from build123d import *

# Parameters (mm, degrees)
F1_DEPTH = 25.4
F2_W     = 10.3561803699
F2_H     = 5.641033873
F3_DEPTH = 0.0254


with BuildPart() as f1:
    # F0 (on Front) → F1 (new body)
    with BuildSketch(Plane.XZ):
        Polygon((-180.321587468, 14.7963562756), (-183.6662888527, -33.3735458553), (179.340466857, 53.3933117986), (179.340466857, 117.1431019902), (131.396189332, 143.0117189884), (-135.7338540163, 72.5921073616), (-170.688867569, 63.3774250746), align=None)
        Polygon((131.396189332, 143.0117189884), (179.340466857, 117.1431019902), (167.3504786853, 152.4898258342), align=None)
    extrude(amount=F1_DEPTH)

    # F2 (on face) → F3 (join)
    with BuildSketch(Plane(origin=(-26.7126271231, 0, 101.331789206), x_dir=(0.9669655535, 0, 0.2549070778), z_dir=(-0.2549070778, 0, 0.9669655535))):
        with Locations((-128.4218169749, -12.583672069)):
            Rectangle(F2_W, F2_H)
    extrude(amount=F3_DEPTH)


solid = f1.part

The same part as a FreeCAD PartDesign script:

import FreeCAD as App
import Part
import Sketcher
from FreeCAD import Vector
Q = App.Units.Quantity


def add_polygon(sketch, points):
    """Adds a closed chain of lines whose ends are joined by coincident constraints."""
    first, n = sketch.GeometryCount, len(points)
    for a, b in zip(points, points[1:] + points[:1]):
        sketch.addGeometry(Part.LineSegment(App.Vector(*a, 0), App.Vector(*b, 0)), False)
    for i in range(n):
        sketch.addConstraint(Sketcher.Constraint("Coincident", first + i, 2, first + (i + 1) % n, 1))

doc = App.newDocument("Part")
body = doc.addObject("PartDesign::Body", "Body")

# Sketch on XZ plane
sketch1 = doc.addObject("Sketcher::SketchObject", "Sketch")
body.addObject(sketch1)
sketch1.AttachmentSupport = (doc.XZ_Plane, [""])
sketch1.MapMode = "FlatFace"
add_polygon(sketch1, [(-180.321587, 14.796356), (-183.666289, -33.373546), (179.340467, 53.393312), (179.340467, 117.143102), (167.350479, 152.489826), (-135.733854, 72.592107), (-170.688868, 63.377425)])  # lines 0-6
sketch1.addConstraint([
    Sketcher.Constraint("Vertical", 2),
    Sketcher.Constraint("Parallel", 4, 5),
    Sketcher.Constraint("DistanceY", 2, 1, 2, 2, 63.74979),
    Sketcher.Constraint("DistanceY", -1, 1, 2, 2, 117.143102),
    Sketcher.Constraint("DistanceY", 5, 2, 3, 2, 89.112401),
    Sketcher.Constraint("DistanceX", 0, 2, 6, 2, 3.344701),
    Sketcher.Constraint("Distance", 5, 36.149182),
    Sketcher.Constraint("DistanceX", 0, 2, -1, 1, 183.666289),
    Sketcher.Constraint("DistanceX", -1, 1, 3, 2, 167.350479),
    Sketcher.Constraint("DistanceX", 3, 2, 2, 2, 11.989988),
    Sketcher.Constraint("DistanceY", 0, 2, 3, 2, 185.863372),
    Sketcher.Constraint("DistanceY", 4, 2, 3, 2, 79.897718),
    Sketcher.Constraint("DistanceY", 6, 2, 5, 2, 48.581069),
    Sketcher.Constraint("Distance", 1, 373.232357),
])
pad1 = doc.addObject("PartDesign::Pad", "Pad")
body.addObject(pad1)
pad1.Profile = sketch1
pad1.Length = Q("1 in")

# Sketch on an angled plane
sketch2 = doc.addObject("Sketcher::SketchObject", "Sketch001")
body.addObject(sketch2)
sketch2.Placement = App.Placement(Vector(-26.712627, 0, 101.331789), App.Rotation(Vector(0.966965554, 0, 0.254907078), Vector(0, 1.000000001, 0), Vector(-0.254907078, 0, 0.966965554), "ZXY"))
add_polygon(sketch2, [(-134, -10), (-134, -15), (-123, -15), (-123, -10)])  # lines 0-3
sketch2.addConstraint([
    Sketcher.Constraint("Vertical", 0),
    Sketcher.Constraint("Horizontal", 1),
    Sketcher.Constraint("Vertical", 2),
    Sketcher.Constraint("Horizontal", 3),
    Sketcher.Constraint("DistanceX", 1, 1, 1, 2, 10.35618),
    Sketcher.Constraint("DistanceY", 0, 2, 0, 1, 5.641034),
    Sketcher.Constraint("DistanceY", 0, 2, -1, 1, 15.404189),
    Sketcher.Constraint("DistanceX", 0, 2, -1, 1, 133.599907),
])
pad2 = doc.addObject("PartDesign::Pad", "Pad001")
body.addObject(pad2)
pad2.Profile = sketch2
pad2.Length = Q("0.001 in")

doc.recompute()
